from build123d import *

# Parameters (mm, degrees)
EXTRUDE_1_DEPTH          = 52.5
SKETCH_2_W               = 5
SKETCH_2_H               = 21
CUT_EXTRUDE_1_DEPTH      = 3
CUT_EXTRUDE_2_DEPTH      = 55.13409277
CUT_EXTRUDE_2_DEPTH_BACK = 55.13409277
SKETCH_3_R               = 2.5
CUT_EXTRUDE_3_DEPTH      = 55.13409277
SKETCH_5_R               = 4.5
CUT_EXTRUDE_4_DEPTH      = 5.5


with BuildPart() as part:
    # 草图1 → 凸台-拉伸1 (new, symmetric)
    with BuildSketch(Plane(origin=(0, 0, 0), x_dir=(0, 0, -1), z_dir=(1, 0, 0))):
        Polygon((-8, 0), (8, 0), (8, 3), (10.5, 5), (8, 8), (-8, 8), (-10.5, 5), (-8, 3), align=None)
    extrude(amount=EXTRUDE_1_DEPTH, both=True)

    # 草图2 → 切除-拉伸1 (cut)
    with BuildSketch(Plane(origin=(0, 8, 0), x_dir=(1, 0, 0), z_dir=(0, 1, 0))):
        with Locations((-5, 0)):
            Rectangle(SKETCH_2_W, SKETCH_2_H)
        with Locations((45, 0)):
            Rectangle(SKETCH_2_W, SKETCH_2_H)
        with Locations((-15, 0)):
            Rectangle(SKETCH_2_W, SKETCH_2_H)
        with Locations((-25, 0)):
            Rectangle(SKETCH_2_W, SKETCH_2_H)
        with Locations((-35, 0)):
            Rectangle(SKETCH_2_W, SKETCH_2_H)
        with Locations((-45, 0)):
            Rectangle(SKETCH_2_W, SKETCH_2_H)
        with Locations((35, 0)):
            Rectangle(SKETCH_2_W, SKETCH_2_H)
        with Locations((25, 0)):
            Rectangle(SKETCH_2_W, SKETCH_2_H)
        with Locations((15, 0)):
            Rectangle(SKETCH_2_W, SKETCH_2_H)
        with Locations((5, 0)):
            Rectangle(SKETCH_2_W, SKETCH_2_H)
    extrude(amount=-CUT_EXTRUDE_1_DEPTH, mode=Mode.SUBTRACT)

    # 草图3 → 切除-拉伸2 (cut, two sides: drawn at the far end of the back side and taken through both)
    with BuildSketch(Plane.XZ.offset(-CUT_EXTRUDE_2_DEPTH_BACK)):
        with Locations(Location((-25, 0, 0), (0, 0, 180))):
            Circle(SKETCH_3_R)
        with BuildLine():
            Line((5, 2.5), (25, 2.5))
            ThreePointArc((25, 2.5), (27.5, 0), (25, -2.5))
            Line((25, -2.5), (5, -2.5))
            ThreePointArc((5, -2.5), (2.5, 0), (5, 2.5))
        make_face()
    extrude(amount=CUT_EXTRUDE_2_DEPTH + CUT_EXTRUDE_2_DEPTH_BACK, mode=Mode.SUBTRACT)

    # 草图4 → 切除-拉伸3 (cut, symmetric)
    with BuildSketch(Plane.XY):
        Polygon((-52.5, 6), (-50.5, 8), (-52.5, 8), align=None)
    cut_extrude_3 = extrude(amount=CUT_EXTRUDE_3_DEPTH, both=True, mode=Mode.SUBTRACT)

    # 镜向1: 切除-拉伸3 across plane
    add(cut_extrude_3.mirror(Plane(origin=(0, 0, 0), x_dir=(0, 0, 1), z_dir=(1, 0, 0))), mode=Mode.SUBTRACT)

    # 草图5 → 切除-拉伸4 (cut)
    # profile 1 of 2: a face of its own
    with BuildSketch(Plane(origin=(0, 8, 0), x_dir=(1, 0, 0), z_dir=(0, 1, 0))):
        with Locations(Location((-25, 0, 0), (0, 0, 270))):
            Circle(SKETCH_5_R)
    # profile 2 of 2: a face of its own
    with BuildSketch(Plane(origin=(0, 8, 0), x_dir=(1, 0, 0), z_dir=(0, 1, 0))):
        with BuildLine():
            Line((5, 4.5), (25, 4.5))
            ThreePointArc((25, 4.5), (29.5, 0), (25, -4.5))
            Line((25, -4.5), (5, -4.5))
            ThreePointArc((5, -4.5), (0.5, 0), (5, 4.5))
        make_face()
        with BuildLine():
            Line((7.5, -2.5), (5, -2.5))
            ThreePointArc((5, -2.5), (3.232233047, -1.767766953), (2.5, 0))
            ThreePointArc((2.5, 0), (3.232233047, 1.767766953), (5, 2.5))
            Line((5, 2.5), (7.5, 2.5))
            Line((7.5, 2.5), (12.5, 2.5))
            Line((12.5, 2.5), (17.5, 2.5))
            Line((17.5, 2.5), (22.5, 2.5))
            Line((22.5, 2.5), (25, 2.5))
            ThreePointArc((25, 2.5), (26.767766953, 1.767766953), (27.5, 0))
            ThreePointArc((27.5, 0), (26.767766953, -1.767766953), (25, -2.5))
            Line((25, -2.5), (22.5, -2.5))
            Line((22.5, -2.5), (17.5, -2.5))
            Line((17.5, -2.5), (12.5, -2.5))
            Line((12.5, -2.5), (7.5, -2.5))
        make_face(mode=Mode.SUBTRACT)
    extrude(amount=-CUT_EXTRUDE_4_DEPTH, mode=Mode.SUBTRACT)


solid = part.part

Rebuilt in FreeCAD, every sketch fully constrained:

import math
import FreeCAD as App
import Part
import Sketcher

V = App.Vector


def add_polygon(sketch, points):
    """Adds a closed chain of lines whose ends are joined by coincident constraints."""
    first, n = sketch.GeometryCount, len(points)
    for a, b in zip(points, points[1:] + points[:1]):
        sketch.addGeometry(Part.LineSegment(App.Vector(*a, 0), App.Vector(*b, 0)), False)
    for i in range(n):
        sketch.addConstraint(Sketcher.Constraint("Coincident", first + i, 2, first + (i + 1) % n, 1))

doc = App.newDocument("Part")
body = doc.addObject("PartDesign::Body", "Body")

# Sketch on YZ plane
sketch1 = doc.addObject("Sketcher::SketchObject", "Sketch")
body.addObject(sketch1)
sketch1.AttachmentSupport = (doc.YZ_Plane, [""])
sketch1.MapMode = "FlatFace"
add_polygon(sketch1, [(0, 8), (0, -8), (3, -8), (5, -10.5), (8, -8), (8, 8), (5, 10.5), (3, 8)])  # lines 0-7
sketch1.addConstraint([
    Sketcher.Constraint("Vertical", 0),
    Sketcher.Constraint("Horizontal", 1),
    Sketcher.Constraint("Vertical", 4),
    Sketcher.Constraint("Horizontal", 7),
    Sketcher.Constraint("Symmetric", 0, 2, 7, 2, -1, 1),
    Sketcher.Constraint("Symmetric", 2, 2, 5, 2, -1),
    Sketcher.Constraint("Horizontal", 1, 2, 3, 2),
    Sketcher.Constraint("Horizontal", 4, 2, 6, 2),
    Sketcher.Constraint("Vertical", 1, 2, 6, 2),
    Sketcher.Constraint("DistanceX", 1, 1, 1, 2, 3.0),
    Sketcher.Constraint("DistanceY", 0, 2, 0, 1, 16.0),
    Sketcher.Constraint("DistanceX", -1, 1, 2, 2, 5.0),
    Sketcher.Constraint("DistanceX", -1, 1, 3, 2, 8.0),
    Sketcher.Constraint("DistanceY", 2, 2, 5, 2, 21.0),
])
pad1 = doc.addObject("PartDesign::Pad", "Pad")
body.addObject(pad1)
pad1.Profile = sketch1
pad1.Length = 105
pad1.Midplane = True

# Sketch on XZ plane
sketch2 = doc.addObject("Sketcher::SketchObject", "Sketch001")
body.addObject(sketch2)
sketch2.AttachmentSupport = (doc.XZ_Plane, [""])
sketch2.MapMode = "FlatFace"
sketch2.AttachmentOffset = App.Placement(V(0, 0, -8), App.Rotation())
add_polygon(sketch2, [(-7.5, -10.5), (-7.5, 10.5), (-2.5, 10.5), (-2.5, -10.5)])  # lines 0-3
add_polygon(sketch2, [(42.5, -10.5), (42.5, 10.5), (47.5, 10.5), (47.5, -10.5)])  # lines 4-7
add_polygon(sketch2, [(-17.5, -10.5), (-17.5, 10.5), (-12.5, 10.5), (-12.5, -10.5)])  # lines 8-11
add_polygon(sketch2, [(-27.5, -10.5), (-27.5, 10.5), (-22.5, 10.5), (-22.5, -10.5)])  # lines 12-15
add_polygon(sketch2, [(-37.5, -10.5), (-37.5, 10.5), (-32.5, 10.5), (-32.5, -10.5)])  # lines 16-19
add_polygon(sketch2, [(-47.5, -10.5), (-47.5, 10.5), (-42.5, 10.5), (-42.5, -10.5)])  # lines 20-23
add_polygon(sketch2, [(32.5, -10.5), (32.5, 10.5), (37.5, 10.5), (37.5, -10.5)])  # lines 24-27
add_polygon(sketch2, [(22.5, -10.5), (22.5, 10.5), (27.5, 10.5), (27.5, -10.5)])  # lines 28-31
add_polygon(sketch2, [(12.5, -10.5), (12.5, 10.5), (17.5, 10.5), (17.5, -10.5)])  # lines 32-35
add_polygon(sketch2, [(2.5, -10.5), (2.5, 10.5), (7.5, 10.5), (7.5, -10.5)])  # lines 36-39
sketch2.addConstraint([
    Sketcher.Constraint("Vertical", 0),
    Sketcher.Constraint("Horizontal", 1),
    Sketcher.Constraint("Vertical", 2),
    Sketcher.Constraint("Horizontal", 3),
    Sketcher.Constraint("Vertical", 4),
    Sketcher.Constraint("Horizontal", 5),
    Sketcher.Constraint("Vertical", 6),
    Sketcher.Constraint("Horizontal", 7),
    Sketcher.Constraint("Vertical", 8),
    Sketcher.Constraint("Horizontal", 9),
    Sketcher.Constraint("Vertical", 10),
    Sketcher.Constraint("Horizontal", 11),
    Sketcher.Constraint("Vertical", 12),
    Sketcher.Constraint("Horizontal", 13),
    Sketcher.Constraint("Vertical", 14),
    Sketcher.Constraint("Horizontal", 15),
    Sketcher.Constraint("Vertical", 16),
    Sketcher.Constraint("Horizontal", 17),
    Sketcher.Constraint("Vertical", 18),
    Sketcher.Constraint("Horizontal", 19),
    Sketcher.Constraint("Vertical", 20),
    Sketcher.Constraint("Horizontal", 21),
    Sketcher.Constraint("Vertical", 22),
    Sketcher.Constraint("Horizontal", 23),
    Sketcher.Constraint("Vertical", 24),
    Sketcher.Constraint("Horizontal", 25),
    Sketcher.Constraint("Vertical", 26),
    Sketcher.Constraint("Horizontal", 27),
    Sketcher.Constraint("Vertical", 28),
    Sketcher.Constraint("Horizontal", 29),
    Sketcher.Constraint("Vertical", 30),
    Sketcher.Constraint("Horizontal", 31),
    Sketcher.Constraint("Vertical", 32),
    Sketcher.Constraint("Horizontal", 33),
    Sketcher.Constraint("Vertical", 34),
    Sketcher.Constraint("Horizontal", 35),
    Sketcher.Constraint("Vertical", 36),
    Sketcher.Constraint("Horizontal", 37),
    Sketcher.Constraint("Vertical", 38),
    Sketcher.Constraint("Horizontal", 39),
    Sketcher.Constraint("Symmetric", 6, 2, 20, 2, -1, 1),
    Sketcher.Constraint("Symmetric", 4, 2, 22, 2, -1, 1),
    Sketcher.Constraint("Symmetric", 18, 2, 24, 2, -1, 1),
    Sketcher.Constraint("Symmetric", 16, 2, 26, 2, -1, 1),
    Sketcher.Constraint("Symmetric", 14, 2, 28, 2, -1, 1),
    Sketcher.Constraint("Symmetric", 12, 2, 30, 2, -1, 1),
    Sketcher.Constraint("Symmetric", 10, 2, 32, 2, -1, 1),
    Sketcher.Constraint("Symmetric", 8, 2, 34, 2, -1, 1),
    Sketcher.Constraint("Symmetric", 2, 2, 36, 2, -1, 1),
    Sketcher.Constraint("Symmetric", 0, 2, 38, 2, -1, 1),
    Sketcher.Constraint("Horizontal", 1, 2, 4, 2),
    Sketcher.Constraint("Horizontal", 3, 2, 6, 2),
    Sketcher.Constraint("Horizontal", 5, 2, 8, 2),
    Sketcher.Constraint("Horizontal", 7, 2, 10, 2),
    Sketcher.Constraint("Horizontal", 9, 2, 12, 2),
    Sketcher.Constraint("Horizontal", 11, 2, 14, 2),
    Sketcher.Constraint("Horizontal", 13, 2, 16, 2),
    Sketcher.Constraint("Horizontal", 15, 2, 18, 2),
    Sketcher.Constraint("Horizontal", 17, 2, 20, 2),
    Sketcher.Constraint("Equal", 3, 5),
    Sketcher.Constraint("Equal", 7, 9),
    Sketcher.Constraint("Equal", 11, 13),
    Sketcher.Constraint("Equal", 15, 17),
    Sketcher.Constraint("DistanceX", 1, 1, 1, 2, 5.0),
    Sketcher.Constraint("DistanceY", 0, 1, 0, 2, 21.0),
    Sketcher.Constraint("DistanceX", 1, 2, 4, 2, 45.0),
    Sketcher.Constraint("DistanceX", 8, 2, 0, 2, 10.0),
    Sketcher.Constraint("DistanceX", 12, 2, 8, 2, 10.0),
    Sketcher.Constraint("DistanceX", 16, 2, 12, 2, 10.0),
    Sketcher.Constraint("DistanceX", 20, 2, 16, 2, 10.0),
])
pocket1 = doc.addObject("PartDesign::Pocket", "Pocket")
body.addObject(pocket1)
pocket1.Profile = sketch2
pocket1.Length = 3
pocket1.Reversed = True

# Sketch on XZ plane
sketch3 = doc.addObject("Sketcher::SketchObject", "Sketch002")
body.addObject(sketch3)
sketch3.AttachmentSupport = (doc.XZ_Plane, [""])
sketch3.MapMode = "FlatFace"
sketch3.addGeometry([
    Part.Circle(V(-25, 0, 0), V(0, 0, 1), 2.5),  # 0
    Part.LineSegment(V(25, 2.5, 0), V(5, 2.5, 0)),  # 1
    Part.ArcOfCircle(Part.Circle(V(5, 0, 0), V(0, 0, 1), 2.5), math.radians(90), math.radians(270)),  # 2
    Part.LineSegment(V(5, -2.5, 0), V(25, -2.5, 0)),  # 3
    Part.ArcOfCircle(Part.Circle(V(25, 0, 0), V(0, 0, 1), 2.5), math.radians(-90), math.radians(90)),  # 4
], False)
sketch3.addConstraint([
    Sketcher.Constraint("Tangent", 1, 2, 2, 1),
    Sketcher.Constraint("Tangent", 2, 2, 3, 1),
    Sketcher.Constraint("Tangent", 3, 2, 4, 1),
    Sketcher.Constraint("Tangent", 4, 2, 1, 1),
    Sketcher.Constraint("Horizontal", 1),
    Sketcher.Constraint("Horizontal", 3),
    Sketcher.Constraint("Equal", 0, 2),
    Sketcher.Constraint("Symmetric", 0, 3, 4, 3, -1, 1),
    Sketcher.Constraint("PointOnObject", 0, 3, -1),
    Sketcher.Constraint("Diameter", 0, 5.0),
    Sketcher.Constraint("DistanceX", 1, 2, 1, 1, 20.0),
    Sketcher.Constraint("DistanceX", 0, 3, -1, 1, 25.0),
])
pocket2 = doc.addObject("PartDesign::Pocket", "Pocket001")
body.addObject(pocket2)
pocket2.Profile = sketch3
pocket2.Type = "ThroughAll"
pocket2.Midplane = True

# Sketch on XY plane
sketch4 = doc.addObject("Sketcher::SketchObject", "Sketch003")
body.addObject(sketch4)
sketch4.AttachmentSupport = (doc.XY_Plane, [""])
sketch4.MapMode = "FlatFace"
add_polygon(sketch4, [(-52.5, 6), (-50.5, 8), (-52.5, 8)])  # lines 0-2
sketch4.addConstraint([
    Sketcher.Constraint("Horizontal", 1),
    Sketcher.Constraint("Vertical", 2),
    Sketcher.Constraint("Equal", 1, 2),
    Sketcher.Constraint("DistanceX", 1, 2, 1, 1, 2.0),
    Sketcher.Constraint("DistanceY", -1, 1, 0, 2, 8.0),
    Sketcher.Constraint("DistanceX", 0, 2, -1, 1, 50.5),
])
pocket3 = doc.addObject("PartDesign::Pocket", "Pocket002")
body.addObject(pocket3)
pocket3.Profile = sketch4
pocket3.Length = 110.268186
pocket3.Midplane = True
doc.recompute()

mirrored = doc.addObject("PartDesign::Mirrored", "Mirrored")
body.addObject(mirrored)
mirrored.Originals = [pocket3]
mirrored.MirrorPlane = (doc.YZ_Plane, [""])
body.Tip = mirrored

# Sketch on XZ plane
sketch5 = doc.addObject("Sketcher::SketchObject", "Sketch004")
body.addObject(sketch5)
sketch5.AttachmentSupport = (doc.XZ_Plane, [""])
sketch5.MapMode = "FlatFace"
sketch5.AttachmentOffset = App.Placement(V(0, 0, -8), App.Rotation())
sketch5.addGeometry([
    Part.Circle(V(-25, 0, 0), V(0, 0, 1), 4.5),  # 0
    Part.LineSegment(V(25, -4.5, 0), V(5, -4.5, 0)),  # 1
    Part.ArcOfCircle(Part.Circle(V(5, 0, 0), V(0, 0, 1), 4.5), math.radians(90), math.radians(270)),  # 2
    Part.LineSegment(V(5, 4.5, 0), V(25, 4.5, 0)),  # 3
    Part.ArcOfCircle(Part.Circle(V(25, 0, 0), V(0, 0, 1), 4.5), math.radians(-90), math.radians(90)),  # 4
    Part.ArcOfCircle(Part.Circle(V(5, 0, 0), V(0, 0, 1), 2.5), math.radians(90), math.radians(180)),  # 5
    Part.ArcOfCircle(Part.Circle(V(5, 0, 0), V(0, 0, 1), 2.5), math.radians(180), math.radians(270)),  # 6
    Part.LineSegment(V(5, -2.5, 0), V(25, -2.5, 0)),  # 7
    Part.ArcOfCircle(Part.Circle(V(25, 0, 0), V(0, 0, 1), 2.5), math.radians(-90), math.radians(0)),  # 8
    Part.ArcOfCircle(Part.Circle(V(25, 0, 0), V(0, 0, 1), 2.5), math.radians(0), math.radians(90)),  # 9
    Part.LineSegment(V(25, 2.5, 0), V(5, 2.5, 0)),  # 10
], False)
sketch5.addConstraint([
    Sketcher.Constraint("Tangent", 1, 2, 2, 2),
    Sketcher.Constraint("Tangent", 2, 1, 3, 1),
    Sketcher.Constraint("Tangent", 3, 2, 4, 2),
    Sketcher.Constraint("Tangent", 4, 1, 1, 1),
    Sketcher.Constraint("Tangent", 5, 2, 6, 1),
    Sketcher.Constraint("Tangent", 6, 2, 7, 1),
    Sketcher.Constraint("Tangent", 7, 2, 8, 1),
    Sketcher.Constraint("Tangent", 8, 2, 9, 1),
    Sketcher.Constraint("Tangent", 9, 2, 10, 1),
    Sketcher.Constraint("Tangent", 10, 2, 5, 1),
    Sketcher.Constraint("Horizontal", 1),
    Sketcher.Constraint("Horizontal", 3),
    Sketcher.Constraint("Horizontal", 7),
    Sketcher.Constraint("Horizontal", 10),
    Sketcher.Constraint("Coincident", 5, 3, 2, 3),
    Sketcher.Constraint("Coincident", 8, 3, 4, 3),
    Sketcher.Constraint("Equal", 0, 2),
    Sketcher.Constraint("Equal", 5, 6),
    Sketcher.Constraint("Symmetric", 0, 3, 4, 3, -1, 1),
    Sketcher.Constraint("PointOnObject", 0, 3, -1),
    Sketcher.Constraint("PointOnObject", 5, 2, -1),
    Sketcher.Constraint("PointOnObject", 8, 2, -1),
    Sketcher.Constraint("Diameter", 0, 9.0),
    Sketcher.Constraint("Radius", 5, 2.5),
    Sketcher.Constraint("DistanceX", 1, 2, 1, 1, 20.0),
    Sketcher.Constraint("DistanceX", 0, 3, -1, 1, 25.0),
])
pocket4 = doc.addObject("PartDesign::Pocket", "Pocket003")
body.addObject(pocket4)
pocket4.Profile = sketch5
pocket4.Length = 5.5
pocket4.Reversed = True

doc.recompute()
